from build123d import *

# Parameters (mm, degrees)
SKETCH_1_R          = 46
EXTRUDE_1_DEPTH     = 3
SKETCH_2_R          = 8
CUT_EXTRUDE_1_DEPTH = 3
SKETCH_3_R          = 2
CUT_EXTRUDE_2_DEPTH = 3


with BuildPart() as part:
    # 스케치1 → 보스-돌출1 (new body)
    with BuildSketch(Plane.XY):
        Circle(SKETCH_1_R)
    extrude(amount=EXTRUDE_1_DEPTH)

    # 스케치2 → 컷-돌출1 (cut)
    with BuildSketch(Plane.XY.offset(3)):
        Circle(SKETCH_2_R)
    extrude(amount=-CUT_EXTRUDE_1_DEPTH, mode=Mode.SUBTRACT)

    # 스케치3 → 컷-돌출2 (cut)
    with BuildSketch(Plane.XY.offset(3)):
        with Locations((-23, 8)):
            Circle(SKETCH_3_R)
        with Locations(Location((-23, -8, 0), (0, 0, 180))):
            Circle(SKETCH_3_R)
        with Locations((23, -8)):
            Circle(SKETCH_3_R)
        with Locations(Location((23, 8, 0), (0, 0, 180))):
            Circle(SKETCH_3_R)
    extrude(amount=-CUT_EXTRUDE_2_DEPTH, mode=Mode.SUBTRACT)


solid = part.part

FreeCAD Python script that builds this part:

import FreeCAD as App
import Part
import Sketcher

V = App.Vector
Q = App.Units.Quantity

doc = App.newDocument("Part")
body = doc.addObject("PartDesign::Body", "Body")

# Sketch on XY plane
sketch1 = doc.addObject("Sketcher::SketchObject", "Sketch")
body.addObject(sketch1)
sketch1.AttachmentSupport = (doc.XY_Plane, [""])
sketch1.MapMode = "FlatFace"
sketch1.addGeometry(Part.Circle(V(0, 0, 0), V(0, 0, 1), 46), False)
sketch1.addConstraint(Sketcher.Constraint("Coincident", 0, 3, -1, 1))
sketch1.addConstraint(Sketcher.Constraint("Diameter", 0, Q("92 mm")))
pad1 = doc.addObject("PartDesign::Pad", "Pad")
body.addObject(pad1)
pad1.Profile = sketch1
pad1.Length = 3

# Sketch on XY plane
sketch2 = doc.addObject("Sketcher::SketchObject", "Sketch001")
body.addObject(sketch2)
sketch2.AttachmentSupport = (doc.XY_Plane, [""])
sketch2.MapMode = "FlatFace"
sketch2.AttachmentOffset = App.Placement(V(0, 0, 3), App.Rotation())
sketch2.addGeometry(Part.Circle(V(0, 0, 0), V(0, 0, 1), 8), False)
sketch2.addConstraint(Sketcher.Constraint("Coincident", 0, 3, -1, 1))
sketch2.addConstraint(Sketcher.Constraint("Diameter", 0, Q("16 mm")))
pocket1 = doc.addObject("PartDesign::Pocket", "Pocket")
body.addObject(pocket1)
pocket1.Profile = sketch2
pocket1.Length = 3

# Sketch on XY plane
sketch3 = doc.addObject("Sketcher::SketchObject", "Sketch002")
body.addObject(sketch3)
sketch3.AttachmentSupport = (doc.XY_Plane, [""])
sketch3.MapMode = "FlatFace"
sketch3.AttachmentOffset = App.Placement(V(0, 0, 3), App.Rotation())
sketch3.addGeometry(Part.Circle(V(-23, 8, 0), V(0, 0, 1), 2), False)
sketch3.addGeometry(Part.Circle(V(-23, -8, 0), V(0, 0, 1), 2), False)
sketch3.addGeometry(Part.Circle(V(23, -8, 0), V(0, 0, 1), 2), False)
sketch3.addGeometry(Part.Circle(V(23, 8, 0), V(0, 0, 1), 2), False)
sketch3.addConstraint(Sketcher.Constraint("Equal", 0, 1))
sketch3.addConstraint(Sketcher.Constraint("Equal", 1, 2))
sketch3.addConstraint(Sketcher.Constraint("Equal", 2, 3))
sketch3.addConstraint(Sketcher.Constraint("Symmetric", 0, 3, 2, 3, -1, 1))
sketch3.addConstraint(Sketcher.Constraint("Symmetric", 1, 3, 3, 3, -1, 1))
sketch3.addConstraint(Sketcher.Constraint("Symmetric", 1, 3, 2, 3, -2))
sketch3.addConstraint(Sketcher.Constraint("Diameter", 0, Q("4 mm")))
sketch3.addConstraint(Sketcher.Constraint("DistanceX", 0, 3, -1, 1, Q("23 mm")))
sketch3.addConstraint(Sketcher.Constraint("DistanceY", -1, 1, 0, 3, Q("8 mm")))
pocket2 = doc.addObject("PartDesign::Pocket", "Pocket001")
body.addObject(pocket2)
pocket2.Profile = sketch3
pocket2.Length = 3

doc.recompute()
